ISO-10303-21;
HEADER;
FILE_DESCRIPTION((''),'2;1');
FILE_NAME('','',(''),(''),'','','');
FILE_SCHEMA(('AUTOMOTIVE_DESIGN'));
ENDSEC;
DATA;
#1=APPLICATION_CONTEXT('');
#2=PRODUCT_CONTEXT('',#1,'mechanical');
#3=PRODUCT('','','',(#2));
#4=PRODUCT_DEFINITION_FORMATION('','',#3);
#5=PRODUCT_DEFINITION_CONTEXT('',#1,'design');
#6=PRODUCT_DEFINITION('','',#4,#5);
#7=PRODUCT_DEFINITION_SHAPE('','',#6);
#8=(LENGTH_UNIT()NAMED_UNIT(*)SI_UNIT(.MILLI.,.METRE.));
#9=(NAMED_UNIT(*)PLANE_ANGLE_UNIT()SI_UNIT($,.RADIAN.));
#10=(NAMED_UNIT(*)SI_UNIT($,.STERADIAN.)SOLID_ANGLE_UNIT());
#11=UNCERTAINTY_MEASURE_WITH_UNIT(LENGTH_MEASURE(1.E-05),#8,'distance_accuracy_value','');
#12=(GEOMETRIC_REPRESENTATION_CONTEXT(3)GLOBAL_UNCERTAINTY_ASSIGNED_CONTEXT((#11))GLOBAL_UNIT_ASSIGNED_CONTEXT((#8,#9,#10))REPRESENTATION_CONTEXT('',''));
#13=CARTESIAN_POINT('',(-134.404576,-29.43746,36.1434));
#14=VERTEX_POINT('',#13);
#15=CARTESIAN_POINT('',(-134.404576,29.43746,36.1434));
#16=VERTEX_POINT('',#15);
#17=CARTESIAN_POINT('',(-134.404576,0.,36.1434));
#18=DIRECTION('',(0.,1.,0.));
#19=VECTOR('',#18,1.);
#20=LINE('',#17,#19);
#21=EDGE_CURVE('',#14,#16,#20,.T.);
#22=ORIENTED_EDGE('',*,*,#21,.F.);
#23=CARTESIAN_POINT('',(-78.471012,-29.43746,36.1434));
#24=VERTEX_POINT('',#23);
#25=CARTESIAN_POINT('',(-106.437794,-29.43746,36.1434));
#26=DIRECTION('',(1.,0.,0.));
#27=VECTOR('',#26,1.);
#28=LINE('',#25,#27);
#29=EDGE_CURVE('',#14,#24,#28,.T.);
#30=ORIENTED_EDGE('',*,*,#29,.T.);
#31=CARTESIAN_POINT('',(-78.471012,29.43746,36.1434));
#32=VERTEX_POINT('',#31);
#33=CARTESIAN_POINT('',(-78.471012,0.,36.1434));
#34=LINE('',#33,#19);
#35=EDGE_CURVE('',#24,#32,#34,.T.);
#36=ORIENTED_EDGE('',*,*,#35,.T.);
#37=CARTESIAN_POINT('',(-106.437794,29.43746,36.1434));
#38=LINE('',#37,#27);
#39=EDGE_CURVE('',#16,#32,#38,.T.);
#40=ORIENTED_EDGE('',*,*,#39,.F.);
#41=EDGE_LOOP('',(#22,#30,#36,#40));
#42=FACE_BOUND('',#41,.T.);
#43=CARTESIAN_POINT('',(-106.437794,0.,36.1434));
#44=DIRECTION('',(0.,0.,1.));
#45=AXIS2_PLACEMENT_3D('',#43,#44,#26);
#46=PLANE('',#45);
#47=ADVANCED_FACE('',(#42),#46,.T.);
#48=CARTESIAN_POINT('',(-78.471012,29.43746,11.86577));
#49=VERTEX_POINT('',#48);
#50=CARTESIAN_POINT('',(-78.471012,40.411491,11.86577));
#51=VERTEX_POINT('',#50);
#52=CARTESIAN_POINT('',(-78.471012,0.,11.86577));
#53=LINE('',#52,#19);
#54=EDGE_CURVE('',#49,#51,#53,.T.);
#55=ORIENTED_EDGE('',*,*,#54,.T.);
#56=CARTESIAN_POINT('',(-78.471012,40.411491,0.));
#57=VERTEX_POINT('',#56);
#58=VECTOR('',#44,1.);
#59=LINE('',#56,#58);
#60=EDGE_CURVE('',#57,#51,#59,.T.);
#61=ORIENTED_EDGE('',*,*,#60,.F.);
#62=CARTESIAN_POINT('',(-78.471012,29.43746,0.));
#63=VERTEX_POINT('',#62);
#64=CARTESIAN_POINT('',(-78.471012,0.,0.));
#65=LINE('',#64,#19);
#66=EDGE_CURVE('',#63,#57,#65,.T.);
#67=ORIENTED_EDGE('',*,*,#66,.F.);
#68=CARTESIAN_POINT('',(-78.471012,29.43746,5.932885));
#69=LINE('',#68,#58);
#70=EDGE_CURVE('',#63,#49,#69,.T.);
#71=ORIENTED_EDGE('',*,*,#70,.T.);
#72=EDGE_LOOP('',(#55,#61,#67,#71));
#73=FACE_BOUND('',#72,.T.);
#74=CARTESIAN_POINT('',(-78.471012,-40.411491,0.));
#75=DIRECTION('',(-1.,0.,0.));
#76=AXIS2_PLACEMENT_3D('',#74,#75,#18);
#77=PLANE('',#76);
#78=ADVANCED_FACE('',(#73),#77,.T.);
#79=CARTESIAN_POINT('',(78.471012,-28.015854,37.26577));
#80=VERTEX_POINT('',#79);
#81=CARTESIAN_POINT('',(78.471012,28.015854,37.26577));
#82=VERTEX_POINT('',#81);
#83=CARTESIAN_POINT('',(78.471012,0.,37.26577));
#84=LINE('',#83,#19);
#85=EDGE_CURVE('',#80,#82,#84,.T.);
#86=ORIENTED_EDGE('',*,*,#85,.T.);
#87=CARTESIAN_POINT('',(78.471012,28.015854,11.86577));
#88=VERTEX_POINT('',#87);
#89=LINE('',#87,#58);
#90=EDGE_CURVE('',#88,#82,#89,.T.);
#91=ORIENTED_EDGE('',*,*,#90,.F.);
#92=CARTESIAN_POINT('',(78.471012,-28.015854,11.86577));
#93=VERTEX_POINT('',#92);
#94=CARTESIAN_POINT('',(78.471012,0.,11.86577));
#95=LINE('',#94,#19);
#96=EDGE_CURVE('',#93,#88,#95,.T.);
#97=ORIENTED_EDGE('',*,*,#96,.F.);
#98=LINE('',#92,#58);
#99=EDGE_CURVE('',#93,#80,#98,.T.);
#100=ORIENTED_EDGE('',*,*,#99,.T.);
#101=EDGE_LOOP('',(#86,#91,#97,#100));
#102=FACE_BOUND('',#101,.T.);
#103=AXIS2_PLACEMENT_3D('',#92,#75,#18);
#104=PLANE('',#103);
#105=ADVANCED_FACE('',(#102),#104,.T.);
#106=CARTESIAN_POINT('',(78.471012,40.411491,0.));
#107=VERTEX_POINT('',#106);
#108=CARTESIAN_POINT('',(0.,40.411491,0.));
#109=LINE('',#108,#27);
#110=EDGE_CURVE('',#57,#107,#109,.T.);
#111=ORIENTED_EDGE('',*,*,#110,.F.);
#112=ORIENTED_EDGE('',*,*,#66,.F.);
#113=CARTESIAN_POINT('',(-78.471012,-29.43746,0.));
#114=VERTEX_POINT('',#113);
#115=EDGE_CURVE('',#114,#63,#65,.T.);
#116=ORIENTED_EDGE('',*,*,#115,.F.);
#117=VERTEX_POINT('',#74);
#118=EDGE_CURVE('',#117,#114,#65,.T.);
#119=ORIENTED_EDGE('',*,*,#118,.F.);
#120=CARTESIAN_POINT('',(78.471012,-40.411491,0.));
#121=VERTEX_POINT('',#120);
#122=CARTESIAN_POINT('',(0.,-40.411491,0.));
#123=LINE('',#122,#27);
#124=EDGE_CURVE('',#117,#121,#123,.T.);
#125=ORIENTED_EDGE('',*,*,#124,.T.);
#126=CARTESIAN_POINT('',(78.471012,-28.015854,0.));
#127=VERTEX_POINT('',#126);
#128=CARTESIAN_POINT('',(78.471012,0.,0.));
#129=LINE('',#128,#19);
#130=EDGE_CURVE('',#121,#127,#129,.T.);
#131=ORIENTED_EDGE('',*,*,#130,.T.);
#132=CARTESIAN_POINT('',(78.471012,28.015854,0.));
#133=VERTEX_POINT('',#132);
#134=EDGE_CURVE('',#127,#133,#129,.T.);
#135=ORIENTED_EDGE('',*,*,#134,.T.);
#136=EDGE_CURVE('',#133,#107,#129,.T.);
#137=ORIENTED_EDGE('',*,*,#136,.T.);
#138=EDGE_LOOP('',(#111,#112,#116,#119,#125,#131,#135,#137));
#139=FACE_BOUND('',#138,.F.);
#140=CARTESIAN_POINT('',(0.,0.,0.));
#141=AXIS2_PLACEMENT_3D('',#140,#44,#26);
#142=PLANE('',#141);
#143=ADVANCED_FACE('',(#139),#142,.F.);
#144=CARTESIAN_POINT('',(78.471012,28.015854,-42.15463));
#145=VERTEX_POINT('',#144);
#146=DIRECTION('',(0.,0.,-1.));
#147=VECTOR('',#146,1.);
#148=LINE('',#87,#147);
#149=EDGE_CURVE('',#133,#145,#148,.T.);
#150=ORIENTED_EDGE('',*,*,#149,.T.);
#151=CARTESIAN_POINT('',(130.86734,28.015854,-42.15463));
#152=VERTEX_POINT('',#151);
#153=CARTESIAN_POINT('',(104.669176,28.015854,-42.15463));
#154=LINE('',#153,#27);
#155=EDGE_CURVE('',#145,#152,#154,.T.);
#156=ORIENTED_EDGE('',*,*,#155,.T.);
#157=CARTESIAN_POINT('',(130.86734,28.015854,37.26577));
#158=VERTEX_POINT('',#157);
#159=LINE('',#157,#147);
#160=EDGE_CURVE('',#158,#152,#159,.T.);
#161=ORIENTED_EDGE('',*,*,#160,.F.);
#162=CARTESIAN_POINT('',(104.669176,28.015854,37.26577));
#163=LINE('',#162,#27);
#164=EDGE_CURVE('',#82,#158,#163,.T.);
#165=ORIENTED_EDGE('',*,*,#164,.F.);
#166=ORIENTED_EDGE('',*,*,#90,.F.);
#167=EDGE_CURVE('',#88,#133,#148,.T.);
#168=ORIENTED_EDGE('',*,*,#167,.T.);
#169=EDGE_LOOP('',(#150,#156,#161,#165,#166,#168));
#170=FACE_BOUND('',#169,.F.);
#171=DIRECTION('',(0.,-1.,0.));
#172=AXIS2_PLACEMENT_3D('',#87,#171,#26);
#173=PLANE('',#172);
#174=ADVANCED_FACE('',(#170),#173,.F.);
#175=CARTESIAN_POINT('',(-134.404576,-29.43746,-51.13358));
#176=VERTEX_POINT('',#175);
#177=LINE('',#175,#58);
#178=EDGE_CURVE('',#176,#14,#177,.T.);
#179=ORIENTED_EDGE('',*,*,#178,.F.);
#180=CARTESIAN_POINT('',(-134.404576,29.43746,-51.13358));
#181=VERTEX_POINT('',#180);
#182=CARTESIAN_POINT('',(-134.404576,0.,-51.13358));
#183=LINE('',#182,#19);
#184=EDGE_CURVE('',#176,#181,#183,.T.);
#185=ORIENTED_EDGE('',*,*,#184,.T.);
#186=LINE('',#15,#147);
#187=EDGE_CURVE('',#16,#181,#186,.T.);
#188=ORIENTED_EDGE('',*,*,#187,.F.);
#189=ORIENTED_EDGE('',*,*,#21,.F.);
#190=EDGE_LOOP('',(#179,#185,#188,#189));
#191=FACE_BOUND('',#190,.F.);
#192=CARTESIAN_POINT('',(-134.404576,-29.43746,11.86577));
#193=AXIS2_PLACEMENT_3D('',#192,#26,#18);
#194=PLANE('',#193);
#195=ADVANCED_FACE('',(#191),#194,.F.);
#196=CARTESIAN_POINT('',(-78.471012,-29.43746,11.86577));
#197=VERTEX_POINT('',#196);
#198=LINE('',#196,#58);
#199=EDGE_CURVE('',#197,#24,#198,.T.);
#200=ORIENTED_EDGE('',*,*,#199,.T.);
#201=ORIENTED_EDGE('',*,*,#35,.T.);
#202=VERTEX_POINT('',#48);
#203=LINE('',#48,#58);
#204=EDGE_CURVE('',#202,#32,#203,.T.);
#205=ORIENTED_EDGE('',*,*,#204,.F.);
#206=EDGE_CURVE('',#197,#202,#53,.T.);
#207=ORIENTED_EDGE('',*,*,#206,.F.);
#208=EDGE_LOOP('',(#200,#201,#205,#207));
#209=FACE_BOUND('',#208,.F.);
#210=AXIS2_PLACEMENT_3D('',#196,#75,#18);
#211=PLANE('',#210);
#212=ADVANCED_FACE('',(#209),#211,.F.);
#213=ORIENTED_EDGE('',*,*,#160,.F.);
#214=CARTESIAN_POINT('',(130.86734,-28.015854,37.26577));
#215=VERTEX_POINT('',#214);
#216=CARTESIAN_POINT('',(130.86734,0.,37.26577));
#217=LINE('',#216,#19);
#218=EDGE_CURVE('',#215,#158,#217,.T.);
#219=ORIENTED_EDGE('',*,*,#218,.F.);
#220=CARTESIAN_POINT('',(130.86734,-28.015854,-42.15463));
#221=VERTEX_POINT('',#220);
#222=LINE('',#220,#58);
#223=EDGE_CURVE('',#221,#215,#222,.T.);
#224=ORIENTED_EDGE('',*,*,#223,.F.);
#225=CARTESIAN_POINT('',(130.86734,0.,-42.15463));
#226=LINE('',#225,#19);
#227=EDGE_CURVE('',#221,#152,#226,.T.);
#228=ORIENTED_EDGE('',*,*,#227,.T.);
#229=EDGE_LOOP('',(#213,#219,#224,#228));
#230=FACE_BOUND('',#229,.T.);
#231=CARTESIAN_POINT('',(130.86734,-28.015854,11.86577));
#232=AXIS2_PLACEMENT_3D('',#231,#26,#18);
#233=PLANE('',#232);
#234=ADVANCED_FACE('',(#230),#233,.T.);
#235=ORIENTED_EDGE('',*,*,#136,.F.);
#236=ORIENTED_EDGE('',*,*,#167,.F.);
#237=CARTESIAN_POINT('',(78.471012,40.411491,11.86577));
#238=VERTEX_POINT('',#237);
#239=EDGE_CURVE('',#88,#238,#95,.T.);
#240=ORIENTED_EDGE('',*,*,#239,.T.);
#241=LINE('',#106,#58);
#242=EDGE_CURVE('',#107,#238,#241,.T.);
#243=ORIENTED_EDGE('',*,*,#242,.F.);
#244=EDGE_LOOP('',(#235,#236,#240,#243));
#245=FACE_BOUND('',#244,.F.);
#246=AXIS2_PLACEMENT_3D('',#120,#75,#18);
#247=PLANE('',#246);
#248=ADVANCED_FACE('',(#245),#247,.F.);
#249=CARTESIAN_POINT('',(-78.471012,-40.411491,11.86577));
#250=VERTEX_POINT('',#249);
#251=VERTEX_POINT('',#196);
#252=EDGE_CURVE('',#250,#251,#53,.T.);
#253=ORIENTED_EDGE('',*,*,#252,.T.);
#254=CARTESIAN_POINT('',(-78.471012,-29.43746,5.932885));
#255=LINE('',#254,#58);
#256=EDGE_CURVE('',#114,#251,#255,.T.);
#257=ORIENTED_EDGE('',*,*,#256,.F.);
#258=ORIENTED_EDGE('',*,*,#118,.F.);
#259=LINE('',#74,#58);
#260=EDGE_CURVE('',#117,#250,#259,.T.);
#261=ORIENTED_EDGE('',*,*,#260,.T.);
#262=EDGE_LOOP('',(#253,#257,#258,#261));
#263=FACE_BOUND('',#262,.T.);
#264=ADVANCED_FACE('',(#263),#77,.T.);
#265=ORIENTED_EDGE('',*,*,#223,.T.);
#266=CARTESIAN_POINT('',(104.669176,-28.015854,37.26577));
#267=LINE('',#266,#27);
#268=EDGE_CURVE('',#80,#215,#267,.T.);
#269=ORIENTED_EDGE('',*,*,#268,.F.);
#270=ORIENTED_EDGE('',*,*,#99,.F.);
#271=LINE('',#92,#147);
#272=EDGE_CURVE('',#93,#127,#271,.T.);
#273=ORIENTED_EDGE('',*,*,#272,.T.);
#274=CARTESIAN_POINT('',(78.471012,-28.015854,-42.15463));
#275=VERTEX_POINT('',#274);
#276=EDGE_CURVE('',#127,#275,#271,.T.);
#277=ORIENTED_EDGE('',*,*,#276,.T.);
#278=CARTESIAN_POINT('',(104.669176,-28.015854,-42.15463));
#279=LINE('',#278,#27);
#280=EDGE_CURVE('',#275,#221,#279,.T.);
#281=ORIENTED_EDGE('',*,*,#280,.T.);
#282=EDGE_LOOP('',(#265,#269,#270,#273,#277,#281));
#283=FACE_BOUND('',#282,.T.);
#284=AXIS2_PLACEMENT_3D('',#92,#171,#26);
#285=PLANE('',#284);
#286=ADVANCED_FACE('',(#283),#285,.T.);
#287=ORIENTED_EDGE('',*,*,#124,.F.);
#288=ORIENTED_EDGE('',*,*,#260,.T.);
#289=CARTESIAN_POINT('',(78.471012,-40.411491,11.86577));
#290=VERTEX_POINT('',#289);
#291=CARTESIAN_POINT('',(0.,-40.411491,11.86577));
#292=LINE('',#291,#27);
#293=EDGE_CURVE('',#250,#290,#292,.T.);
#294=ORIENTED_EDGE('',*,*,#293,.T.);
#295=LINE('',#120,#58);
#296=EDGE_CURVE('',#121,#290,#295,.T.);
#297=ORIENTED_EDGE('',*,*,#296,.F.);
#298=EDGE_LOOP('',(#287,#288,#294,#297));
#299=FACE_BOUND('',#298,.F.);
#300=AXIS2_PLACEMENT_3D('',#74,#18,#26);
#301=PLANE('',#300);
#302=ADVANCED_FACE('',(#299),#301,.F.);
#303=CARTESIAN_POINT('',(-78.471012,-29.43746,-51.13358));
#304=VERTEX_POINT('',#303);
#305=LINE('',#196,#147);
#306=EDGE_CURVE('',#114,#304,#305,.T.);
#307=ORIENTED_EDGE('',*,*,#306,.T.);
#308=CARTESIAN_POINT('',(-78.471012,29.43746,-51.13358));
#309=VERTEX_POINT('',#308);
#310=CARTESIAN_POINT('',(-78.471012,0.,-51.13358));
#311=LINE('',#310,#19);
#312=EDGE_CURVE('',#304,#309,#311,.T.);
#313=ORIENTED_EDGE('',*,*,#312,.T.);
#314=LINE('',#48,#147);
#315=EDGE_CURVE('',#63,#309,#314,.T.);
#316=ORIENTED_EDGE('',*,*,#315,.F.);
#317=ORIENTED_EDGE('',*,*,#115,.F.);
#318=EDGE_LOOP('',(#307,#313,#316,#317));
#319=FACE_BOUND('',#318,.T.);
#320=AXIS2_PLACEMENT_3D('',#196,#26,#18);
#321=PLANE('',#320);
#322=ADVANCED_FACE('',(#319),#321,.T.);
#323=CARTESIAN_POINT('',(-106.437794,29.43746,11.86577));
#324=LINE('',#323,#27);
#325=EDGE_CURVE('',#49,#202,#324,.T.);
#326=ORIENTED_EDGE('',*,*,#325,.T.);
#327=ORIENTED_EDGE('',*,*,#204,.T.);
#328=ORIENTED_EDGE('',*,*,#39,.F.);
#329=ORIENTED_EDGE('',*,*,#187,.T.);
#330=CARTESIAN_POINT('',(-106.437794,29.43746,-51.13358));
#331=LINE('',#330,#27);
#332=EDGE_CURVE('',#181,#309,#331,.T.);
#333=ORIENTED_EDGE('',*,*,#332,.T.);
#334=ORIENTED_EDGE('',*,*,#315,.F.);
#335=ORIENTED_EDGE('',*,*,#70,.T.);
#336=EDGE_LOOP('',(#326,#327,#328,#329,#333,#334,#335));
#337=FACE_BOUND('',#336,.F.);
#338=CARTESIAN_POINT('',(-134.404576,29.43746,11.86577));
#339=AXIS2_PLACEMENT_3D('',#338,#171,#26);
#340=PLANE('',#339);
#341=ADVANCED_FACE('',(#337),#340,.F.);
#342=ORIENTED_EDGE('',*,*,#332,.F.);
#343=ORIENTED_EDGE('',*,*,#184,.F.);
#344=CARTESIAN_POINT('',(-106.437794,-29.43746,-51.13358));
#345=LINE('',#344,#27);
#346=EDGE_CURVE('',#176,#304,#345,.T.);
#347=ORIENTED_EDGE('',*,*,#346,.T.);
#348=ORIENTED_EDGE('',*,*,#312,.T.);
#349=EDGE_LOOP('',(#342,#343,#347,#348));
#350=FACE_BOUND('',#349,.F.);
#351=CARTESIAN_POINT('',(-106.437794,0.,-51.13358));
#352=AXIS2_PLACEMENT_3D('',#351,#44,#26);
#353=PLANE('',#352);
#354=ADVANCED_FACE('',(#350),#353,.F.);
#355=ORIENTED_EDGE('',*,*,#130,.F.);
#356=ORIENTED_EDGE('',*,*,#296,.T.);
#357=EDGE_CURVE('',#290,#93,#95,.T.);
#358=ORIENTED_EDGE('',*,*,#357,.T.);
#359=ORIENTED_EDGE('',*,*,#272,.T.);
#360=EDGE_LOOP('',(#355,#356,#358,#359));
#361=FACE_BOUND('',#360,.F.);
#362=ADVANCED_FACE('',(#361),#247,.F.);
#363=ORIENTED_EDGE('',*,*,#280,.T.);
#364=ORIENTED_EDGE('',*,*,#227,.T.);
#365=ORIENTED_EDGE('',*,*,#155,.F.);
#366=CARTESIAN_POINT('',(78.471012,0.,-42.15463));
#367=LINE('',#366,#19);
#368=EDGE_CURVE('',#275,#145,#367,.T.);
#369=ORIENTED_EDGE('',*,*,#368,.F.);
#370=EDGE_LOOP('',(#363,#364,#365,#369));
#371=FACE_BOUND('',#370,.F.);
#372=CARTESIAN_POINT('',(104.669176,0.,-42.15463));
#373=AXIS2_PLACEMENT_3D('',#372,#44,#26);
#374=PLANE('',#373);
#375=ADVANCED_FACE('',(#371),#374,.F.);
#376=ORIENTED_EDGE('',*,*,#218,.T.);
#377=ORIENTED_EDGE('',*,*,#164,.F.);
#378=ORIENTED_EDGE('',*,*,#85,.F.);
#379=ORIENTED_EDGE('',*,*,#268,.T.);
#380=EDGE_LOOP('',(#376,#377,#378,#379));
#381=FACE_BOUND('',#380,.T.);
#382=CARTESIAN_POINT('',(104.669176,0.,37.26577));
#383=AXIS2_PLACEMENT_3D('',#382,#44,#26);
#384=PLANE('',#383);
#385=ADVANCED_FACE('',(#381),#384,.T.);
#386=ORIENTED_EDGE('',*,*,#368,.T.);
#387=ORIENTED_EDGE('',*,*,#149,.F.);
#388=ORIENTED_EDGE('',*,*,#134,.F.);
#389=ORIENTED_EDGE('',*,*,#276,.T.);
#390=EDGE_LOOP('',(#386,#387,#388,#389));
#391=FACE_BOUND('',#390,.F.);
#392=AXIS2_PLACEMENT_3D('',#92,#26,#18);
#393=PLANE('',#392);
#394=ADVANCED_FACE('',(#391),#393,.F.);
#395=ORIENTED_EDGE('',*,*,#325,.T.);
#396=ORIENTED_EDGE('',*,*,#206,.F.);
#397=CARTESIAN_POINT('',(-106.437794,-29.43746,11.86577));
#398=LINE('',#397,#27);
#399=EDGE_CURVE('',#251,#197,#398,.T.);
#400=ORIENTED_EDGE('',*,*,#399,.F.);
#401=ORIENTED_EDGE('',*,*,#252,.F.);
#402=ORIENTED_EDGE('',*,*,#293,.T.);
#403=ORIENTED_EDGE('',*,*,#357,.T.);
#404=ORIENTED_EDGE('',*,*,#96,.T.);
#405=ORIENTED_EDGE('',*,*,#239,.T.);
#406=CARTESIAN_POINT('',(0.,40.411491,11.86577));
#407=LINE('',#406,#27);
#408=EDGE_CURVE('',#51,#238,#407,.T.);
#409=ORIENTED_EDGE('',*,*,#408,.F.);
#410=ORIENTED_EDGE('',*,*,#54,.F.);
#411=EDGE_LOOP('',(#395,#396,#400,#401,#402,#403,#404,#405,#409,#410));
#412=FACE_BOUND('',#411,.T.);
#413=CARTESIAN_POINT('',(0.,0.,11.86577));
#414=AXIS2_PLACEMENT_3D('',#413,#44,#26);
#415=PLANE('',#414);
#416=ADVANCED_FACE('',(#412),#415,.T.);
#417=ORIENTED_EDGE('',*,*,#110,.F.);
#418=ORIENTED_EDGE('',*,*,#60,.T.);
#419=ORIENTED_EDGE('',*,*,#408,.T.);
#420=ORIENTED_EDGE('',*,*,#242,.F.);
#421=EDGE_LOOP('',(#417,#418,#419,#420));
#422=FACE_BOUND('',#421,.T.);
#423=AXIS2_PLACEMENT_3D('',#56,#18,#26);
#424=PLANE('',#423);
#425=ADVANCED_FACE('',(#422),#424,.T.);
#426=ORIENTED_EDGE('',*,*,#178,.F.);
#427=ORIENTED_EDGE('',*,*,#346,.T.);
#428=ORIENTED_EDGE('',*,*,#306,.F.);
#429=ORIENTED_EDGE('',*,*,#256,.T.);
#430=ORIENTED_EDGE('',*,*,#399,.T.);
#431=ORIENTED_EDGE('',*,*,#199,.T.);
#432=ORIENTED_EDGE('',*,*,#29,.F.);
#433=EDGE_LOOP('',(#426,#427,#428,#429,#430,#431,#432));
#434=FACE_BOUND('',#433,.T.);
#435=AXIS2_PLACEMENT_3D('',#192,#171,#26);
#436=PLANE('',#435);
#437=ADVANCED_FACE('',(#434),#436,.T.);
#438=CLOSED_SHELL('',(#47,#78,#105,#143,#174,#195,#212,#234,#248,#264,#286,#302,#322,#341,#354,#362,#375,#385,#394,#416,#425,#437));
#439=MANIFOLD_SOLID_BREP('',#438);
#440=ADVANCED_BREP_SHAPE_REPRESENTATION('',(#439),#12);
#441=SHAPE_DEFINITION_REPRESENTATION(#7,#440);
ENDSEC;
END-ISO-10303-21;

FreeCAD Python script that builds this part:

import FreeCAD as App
import Part
import Sketcher
Q = App.Units.Quantity


def add_polygon(sketch, points):
    """Adds a closed chain of lines whose ends are joined by coincident constraints."""
    first, n = sketch.GeometryCount, len(points)
    for a, b in zip(points, points[1:] + points[:1]):
        sketch.addGeometry(Part.LineSegment(App.Vector(*a, 0), App.Vector(*b, 0)), False)
    for i in range(n):
        sketch.addConstraint(Sketcher.Constraint("Coincident", first + i, 2, first + (i + 1) % n, 1))

doc = App.newDocument("Part")
params = doc.addObject("Spreadsheet::Sheet", "Params")
for row, (alias, value) in enumerate([
    ("pad1_length", "11.86577 mm"),
    ("pad2_length", "24.27763 mm"),
    ("pad2_length2", "62.99935 mm"),
    ("pad3_length", "1 in"),
    ("pad3_length2", "54.0204 mm"),
], start=1):
    params.set(f"A{row}", alias)
    params.set(f"B{row}", "=" + value)
    params.setAlias(f"B{row}", alias)

body = doc.addObject("PartDesign::Body", "Body")

# Sketch on XY plane
sketch1 = body.newObject("Sketcher::SketchObject", "Sketch")
sketch1.AttachmentSupport = (doc.getObject("XY_Plane"), [""])
sketch1.MapMode = "FlatFace"
add_polygon(sketch1, [(-78, 40), (-78, -40), (78, -40), (78, 40)])  # lines 0-3
sketch1.addConstraint([
    Sketcher.Constraint("Vertical", 0),
    Sketcher.Constraint("Horizontal", 1),
    Sketcher.Constraint("Vertical", 2),
    Sketcher.Constraint("Horizontal", 3),
    Sketcher.Constraint("Symmetric", 0, 2, 2, 2, -1, 1),
    Sketcher.Constraint("DistanceY", 0, 2, 0, 1, Q("80.822982 mm")),
    Sketcher.Constraint("DistanceX", 1, 1, 1, 2, Q("156.942024 mm")),
])
pad1 = body.newObject("PartDesign::Pad", "Pad")
pad1.Profile = sketch1
pad1.setExpression("Length", "Params.pad1_length")

# Sketch on XY plane
sketch2 = body.newObject("Sketcher::SketchObject", "Sketch001")
sketch2.AttachmentSupport = (doc.getObject("XY_Plane"), [""])
sketch2.MapMode = "FlatFace"
sketch2.AttachmentOffset = App.Placement(App.Vector(0, 0, 11.86577), App.Rotation())
add_polygon(sketch2, [(-134, 29), (-134, -29), (-78, -29), (-78, 29)])  # lines 0-3
sketch2.addConstraint([
    Sketcher.Constraint("Vertical", 0),
    Sketcher.Constraint("Horizontal", 1),
    Sketcher.Constraint("Vertical", 2),
    Sketcher.Constraint("Horizontal", 3),
    Sketcher.Constraint("DistanceY", 0, 2, 0, 1, Q("58.87492 mm")),
    Sketcher.Constraint("DistanceX", 1, 1, 1, 2, Q("55.933565 mm")),
    Sketcher.Constraint("DistanceY", 0, 2, -1, 1, Q("29.43746 mm")),
    Sketcher.Constraint("DistanceX", 1, 2, -1, 1, Q("78.471012 mm")),
])
pad2 = body.newObject("PartDesign::Pad", "Pad001")
pad2.Profile = sketch2
pad2.Type = "TwoLengths"
pad2.setExpression("Length", "Params.pad2_length")
pad2.setExpression("Length2", "Params.pad2_length2")

# Sketch on XY plane
sketch3 = body.newObject("Sketcher::SketchObject", "Sketch002")
sketch3.AttachmentSupport = (doc.getObject("XY_Plane"), [""])
sketch3.MapMode = "FlatFace"
sketch3.AttachmentOffset = App.Placement(App.Vector(0, 0, 11.86577), App.Rotation())
add_polygon(sketch3, [(78, 28), (78, -28), (131, -28), (131, 28)])  # lines 0-3
sketch3.addConstraint([
    Sketcher.Constraint("Vertical", 0),
    Sketcher.Constraint("Horizontal", 1),
    Sketcher.Constraint("Vertical", 2),
    Sketcher.Constraint("Horizontal", 3),
    Sketcher.Constraint("DistanceX", 1, 1, 1, 2, Q("52.396328 mm")),
    Sketcher.Constraint("DistanceY", 0, 2, 0, 1, Q("56.031708 mm")),
    Sketcher.Constraint("DistanceX", -1, 1, 0, 2, Q("78.471012 mm")),
    Sketcher.Constraint("DistanceY", 0, 2, -1, 1, Q("28.015854 mm")),
])
pad3 = body.newObject("PartDesign::Pad", "Pad002")
pad3.Profile = sketch3
pad3.Type = "TwoLengths"
pad3.setExpression("Length", "Params.pad3_length")
pad3.setExpression("Length2", "Params.pad3_length2")

doc.recompute()
